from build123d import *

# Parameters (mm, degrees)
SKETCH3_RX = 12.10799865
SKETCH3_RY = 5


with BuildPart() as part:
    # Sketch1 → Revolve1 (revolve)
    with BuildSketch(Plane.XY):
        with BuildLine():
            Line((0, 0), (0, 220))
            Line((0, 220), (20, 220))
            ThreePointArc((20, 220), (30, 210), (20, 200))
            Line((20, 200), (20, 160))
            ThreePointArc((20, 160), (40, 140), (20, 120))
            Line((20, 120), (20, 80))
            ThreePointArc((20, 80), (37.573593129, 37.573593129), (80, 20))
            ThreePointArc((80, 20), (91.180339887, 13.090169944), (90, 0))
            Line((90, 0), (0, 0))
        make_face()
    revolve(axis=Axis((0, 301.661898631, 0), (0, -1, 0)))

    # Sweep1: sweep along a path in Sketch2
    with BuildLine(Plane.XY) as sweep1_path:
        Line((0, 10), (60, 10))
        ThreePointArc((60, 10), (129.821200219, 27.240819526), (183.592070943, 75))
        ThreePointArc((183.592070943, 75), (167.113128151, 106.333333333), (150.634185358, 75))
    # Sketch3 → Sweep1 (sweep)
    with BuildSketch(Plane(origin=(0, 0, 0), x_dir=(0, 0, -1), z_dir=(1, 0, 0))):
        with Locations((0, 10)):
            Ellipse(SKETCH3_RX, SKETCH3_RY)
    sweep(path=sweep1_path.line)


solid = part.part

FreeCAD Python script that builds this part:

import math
import FreeCAD as App
import Part
import Sketcher
Q = App.Units.Quantity

doc = App.newDocument("Part")
body = doc.addObject("PartDesign::Body", "Body")

# Sketch on XY plane
sketch1 = doc.addObject("Sketcher::SketchObject", "Sketch")
body.addObject(sketch1)
sketch1.AttachmentSupport = (doc.XY_Plane, [""])
sketch1.MapMode = "FlatFace"
sketch1.addGeometry([
    Part.LineSegment(App.Vector(0, 220, 0), App.Vector(0, 0, 0)),  # 0
    Part.LineSegment(App.Vector(0, 0, 0), App.Vector(90, 0, 0)),  # 1
    Part.ArcOfCircle(Part.Circle(App.Vector(80, 8, 0), App.Vector(0, 0, 1), 12), math.radians(-37), math.radians(90)),  # 2
    Part.ArcOfCircle(Part.Circle(App.Vector(80, 80, 0), App.Vector(0, 0, 1), 60), math.radians(-180), math.radians(-90)),  # 3
    Part.LineSegment(App.Vector(20, 80, 0), App.Vector(20, 120, 0)),  # 4
    Part.ArcOfCircle(Part.Circle(App.Vector(20, 140, 0), App.Vector(0, 0, 1), 20), math.radians(-90), math.radians(90)),  # 5
    Part.LineSegment(App.Vector(20, 160, 0), App.Vector(20, 200, 0)),  # 6
    Part.ArcOfCircle(Part.Circle(App.Vector(20, 210, 0), App.Vector(0, 0, 1), 10), math.radians(-90), math.radians(90)),  # 7
    Part.LineSegment(App.Vector(20, 220, 0), App.Vector(0, 220, 0)),  # 8
], False)
sketch1.addConstraint([
    Sketcher.Constraint("Coincident", 0, 2, 1, 1),
    Sketcher.Constraint("Coincident", 1, 2, 2, 1),
    Sketcher.Constraint("Tangent", 2, 2, 3, 2),
    Sketcher.Constraint("Tangent", 3, 1, 4, 1),
    Sketcher.Constraint("Coincident", 4, 2, 5, 1),
    Sketcher.Constraint("Coincident", 5, 2, 6, 1),
    Sketcher.Constraint("Coincident", 6, 2, 7, 1),
    Sketcher.Constraint("Tangent", 7, 2, 8, 1),
    Sketcher.Constraint("Coincident", 8, 2, 0, 1),
    Sketcher.Constraint("Vertical", 0),
    Sketcher.Constraint("Horizontal", 1),
    Sketcher.Constraint("Vertical", 4),
    Sketcher.Constraint("Vertical", 6),
    Sketcher.Constraint("Horizontal", 8),
    Sketcher.Constraint("Coincident", 0, 2, -1, 1),
    Sketcher.Constraint("Vertical", 2, 3, 3, 3),
    Sketcher.Constraint("Vertical", 5, 3, 7, 3),
    Sketcher.Constraint("Vertical", 7, 3, 3, 1),
    Sketcher.Constraint("Vertical", 4, 2, 5, 2),
    Sketcher.Constraint("Equal", 4, 6),
    Sketcher.Constraint("Radius", 3, Q("60 mm")),
    Sketcher.Constraint("Radius", 5, Q("20 mm")),
    Sketcher.Constraint("Radius", 7, Q("10 mm")),
    Sketcher.Constraint("Radius", 2, Q("12.5 mm")),
    Sketcher.Constraint("DistanceX", 1, 1, 1, 2, Q("90 mm")),
    Sketcher.Constraint("DistanceX", 8, 2, 8, 1, Q("20 mm")),
    Sketcher.Constraint("DistanceY", 0, 2, 0, 1, Q("220 mm")),
])
revolution = doc.addObject("PartDesign::Revolution", "Revolution")
body.addObject(revolution)
revolution.Profile = sketch1
revolution.ReferenceAxis = (sketch1, ["V_Axis"])
revolution.Angle = 360

# Sketch on YZ plane
sketch2 = doc.addObject("Sketcher::SketchObject", "Sketch001")
body.addObject(sketch2)
sketch2.AttachmentSupport = (doc.YZ_Plane, [""])
sketch2.MapMode = "FlatFace"
sketch2.addGeometry(Part.Ellipse(App.Vector(10, -12.107999, 0), App.Vector(15, 0, 0), App.Vector(10, 0, 0)), False)
sketch2.addConstraint(Sketcher.Constraint("Block", 0))

# Sketch on XY plane
sketch3 = doc.addObject("Sketcher::SketchObject", "Sketch002")
body.addObject(sketch3)
sketch3.AttachmentSupport = (doc.XY_Plane, [""])
sketch3.MapMode = "FlatFace"
sketch3.addGeometry([
    Part.LineSegment(App.Vector(0, 10, 0), App.Vector(60, 10, 0)),
    Part.ArcOfCircle(Part.Circle(App.Vector(60, 160, 0), App.Vector(0, 0, 1), 150), math.radians(-90), math.radians(-35)),
    Part.ArcOfCircle(Part.Circle(App.Vector(167, 86, 0), App.Vector(0, 0, 1), 20), math.radians(-35), math.radians(215)),
], False)
sketch3.addConstraint([
    Sketcher.Constraint("Tangent", 0, 2, 1, 1),
    Sketcher.Constraint("Tangent", 1, 2, 2, 1),
    Sketcher.Constraint("Horizontal", 0),
    Sketcher.Constraint("PointOnObject", 0, 1, -2),
    Sketcher.Constraint("Horizontal", 1, 2, 2, 2),
    Sketcher.Constraint("Radius", 1, Q("150 mm")),
    Sketcher.Constraint("Radius", 2, Q("20 mm")),
    Sketcher.Constraint("DistanceX", 0, 1, 0, 2, Q("60 mm")),
    Sketcher.Constraint("DistanceY", -1, 1, 1, 3, Q("160 mm")),
    Sketcher.Constraint("DistanceY", -1, 1, 1, 2, Q("75 mm")),
])
doc.recompute()

additivepipe = doc.addObject("PartDesign::AdditivePipe", "AdditivePipe")
body.addObject(additivepipe)
additivepipe.Profile = sketch2
additivepipe.Spine = (sketch3, ["Edge1", "Edge2", "Edge3"])

doc.recompute()
